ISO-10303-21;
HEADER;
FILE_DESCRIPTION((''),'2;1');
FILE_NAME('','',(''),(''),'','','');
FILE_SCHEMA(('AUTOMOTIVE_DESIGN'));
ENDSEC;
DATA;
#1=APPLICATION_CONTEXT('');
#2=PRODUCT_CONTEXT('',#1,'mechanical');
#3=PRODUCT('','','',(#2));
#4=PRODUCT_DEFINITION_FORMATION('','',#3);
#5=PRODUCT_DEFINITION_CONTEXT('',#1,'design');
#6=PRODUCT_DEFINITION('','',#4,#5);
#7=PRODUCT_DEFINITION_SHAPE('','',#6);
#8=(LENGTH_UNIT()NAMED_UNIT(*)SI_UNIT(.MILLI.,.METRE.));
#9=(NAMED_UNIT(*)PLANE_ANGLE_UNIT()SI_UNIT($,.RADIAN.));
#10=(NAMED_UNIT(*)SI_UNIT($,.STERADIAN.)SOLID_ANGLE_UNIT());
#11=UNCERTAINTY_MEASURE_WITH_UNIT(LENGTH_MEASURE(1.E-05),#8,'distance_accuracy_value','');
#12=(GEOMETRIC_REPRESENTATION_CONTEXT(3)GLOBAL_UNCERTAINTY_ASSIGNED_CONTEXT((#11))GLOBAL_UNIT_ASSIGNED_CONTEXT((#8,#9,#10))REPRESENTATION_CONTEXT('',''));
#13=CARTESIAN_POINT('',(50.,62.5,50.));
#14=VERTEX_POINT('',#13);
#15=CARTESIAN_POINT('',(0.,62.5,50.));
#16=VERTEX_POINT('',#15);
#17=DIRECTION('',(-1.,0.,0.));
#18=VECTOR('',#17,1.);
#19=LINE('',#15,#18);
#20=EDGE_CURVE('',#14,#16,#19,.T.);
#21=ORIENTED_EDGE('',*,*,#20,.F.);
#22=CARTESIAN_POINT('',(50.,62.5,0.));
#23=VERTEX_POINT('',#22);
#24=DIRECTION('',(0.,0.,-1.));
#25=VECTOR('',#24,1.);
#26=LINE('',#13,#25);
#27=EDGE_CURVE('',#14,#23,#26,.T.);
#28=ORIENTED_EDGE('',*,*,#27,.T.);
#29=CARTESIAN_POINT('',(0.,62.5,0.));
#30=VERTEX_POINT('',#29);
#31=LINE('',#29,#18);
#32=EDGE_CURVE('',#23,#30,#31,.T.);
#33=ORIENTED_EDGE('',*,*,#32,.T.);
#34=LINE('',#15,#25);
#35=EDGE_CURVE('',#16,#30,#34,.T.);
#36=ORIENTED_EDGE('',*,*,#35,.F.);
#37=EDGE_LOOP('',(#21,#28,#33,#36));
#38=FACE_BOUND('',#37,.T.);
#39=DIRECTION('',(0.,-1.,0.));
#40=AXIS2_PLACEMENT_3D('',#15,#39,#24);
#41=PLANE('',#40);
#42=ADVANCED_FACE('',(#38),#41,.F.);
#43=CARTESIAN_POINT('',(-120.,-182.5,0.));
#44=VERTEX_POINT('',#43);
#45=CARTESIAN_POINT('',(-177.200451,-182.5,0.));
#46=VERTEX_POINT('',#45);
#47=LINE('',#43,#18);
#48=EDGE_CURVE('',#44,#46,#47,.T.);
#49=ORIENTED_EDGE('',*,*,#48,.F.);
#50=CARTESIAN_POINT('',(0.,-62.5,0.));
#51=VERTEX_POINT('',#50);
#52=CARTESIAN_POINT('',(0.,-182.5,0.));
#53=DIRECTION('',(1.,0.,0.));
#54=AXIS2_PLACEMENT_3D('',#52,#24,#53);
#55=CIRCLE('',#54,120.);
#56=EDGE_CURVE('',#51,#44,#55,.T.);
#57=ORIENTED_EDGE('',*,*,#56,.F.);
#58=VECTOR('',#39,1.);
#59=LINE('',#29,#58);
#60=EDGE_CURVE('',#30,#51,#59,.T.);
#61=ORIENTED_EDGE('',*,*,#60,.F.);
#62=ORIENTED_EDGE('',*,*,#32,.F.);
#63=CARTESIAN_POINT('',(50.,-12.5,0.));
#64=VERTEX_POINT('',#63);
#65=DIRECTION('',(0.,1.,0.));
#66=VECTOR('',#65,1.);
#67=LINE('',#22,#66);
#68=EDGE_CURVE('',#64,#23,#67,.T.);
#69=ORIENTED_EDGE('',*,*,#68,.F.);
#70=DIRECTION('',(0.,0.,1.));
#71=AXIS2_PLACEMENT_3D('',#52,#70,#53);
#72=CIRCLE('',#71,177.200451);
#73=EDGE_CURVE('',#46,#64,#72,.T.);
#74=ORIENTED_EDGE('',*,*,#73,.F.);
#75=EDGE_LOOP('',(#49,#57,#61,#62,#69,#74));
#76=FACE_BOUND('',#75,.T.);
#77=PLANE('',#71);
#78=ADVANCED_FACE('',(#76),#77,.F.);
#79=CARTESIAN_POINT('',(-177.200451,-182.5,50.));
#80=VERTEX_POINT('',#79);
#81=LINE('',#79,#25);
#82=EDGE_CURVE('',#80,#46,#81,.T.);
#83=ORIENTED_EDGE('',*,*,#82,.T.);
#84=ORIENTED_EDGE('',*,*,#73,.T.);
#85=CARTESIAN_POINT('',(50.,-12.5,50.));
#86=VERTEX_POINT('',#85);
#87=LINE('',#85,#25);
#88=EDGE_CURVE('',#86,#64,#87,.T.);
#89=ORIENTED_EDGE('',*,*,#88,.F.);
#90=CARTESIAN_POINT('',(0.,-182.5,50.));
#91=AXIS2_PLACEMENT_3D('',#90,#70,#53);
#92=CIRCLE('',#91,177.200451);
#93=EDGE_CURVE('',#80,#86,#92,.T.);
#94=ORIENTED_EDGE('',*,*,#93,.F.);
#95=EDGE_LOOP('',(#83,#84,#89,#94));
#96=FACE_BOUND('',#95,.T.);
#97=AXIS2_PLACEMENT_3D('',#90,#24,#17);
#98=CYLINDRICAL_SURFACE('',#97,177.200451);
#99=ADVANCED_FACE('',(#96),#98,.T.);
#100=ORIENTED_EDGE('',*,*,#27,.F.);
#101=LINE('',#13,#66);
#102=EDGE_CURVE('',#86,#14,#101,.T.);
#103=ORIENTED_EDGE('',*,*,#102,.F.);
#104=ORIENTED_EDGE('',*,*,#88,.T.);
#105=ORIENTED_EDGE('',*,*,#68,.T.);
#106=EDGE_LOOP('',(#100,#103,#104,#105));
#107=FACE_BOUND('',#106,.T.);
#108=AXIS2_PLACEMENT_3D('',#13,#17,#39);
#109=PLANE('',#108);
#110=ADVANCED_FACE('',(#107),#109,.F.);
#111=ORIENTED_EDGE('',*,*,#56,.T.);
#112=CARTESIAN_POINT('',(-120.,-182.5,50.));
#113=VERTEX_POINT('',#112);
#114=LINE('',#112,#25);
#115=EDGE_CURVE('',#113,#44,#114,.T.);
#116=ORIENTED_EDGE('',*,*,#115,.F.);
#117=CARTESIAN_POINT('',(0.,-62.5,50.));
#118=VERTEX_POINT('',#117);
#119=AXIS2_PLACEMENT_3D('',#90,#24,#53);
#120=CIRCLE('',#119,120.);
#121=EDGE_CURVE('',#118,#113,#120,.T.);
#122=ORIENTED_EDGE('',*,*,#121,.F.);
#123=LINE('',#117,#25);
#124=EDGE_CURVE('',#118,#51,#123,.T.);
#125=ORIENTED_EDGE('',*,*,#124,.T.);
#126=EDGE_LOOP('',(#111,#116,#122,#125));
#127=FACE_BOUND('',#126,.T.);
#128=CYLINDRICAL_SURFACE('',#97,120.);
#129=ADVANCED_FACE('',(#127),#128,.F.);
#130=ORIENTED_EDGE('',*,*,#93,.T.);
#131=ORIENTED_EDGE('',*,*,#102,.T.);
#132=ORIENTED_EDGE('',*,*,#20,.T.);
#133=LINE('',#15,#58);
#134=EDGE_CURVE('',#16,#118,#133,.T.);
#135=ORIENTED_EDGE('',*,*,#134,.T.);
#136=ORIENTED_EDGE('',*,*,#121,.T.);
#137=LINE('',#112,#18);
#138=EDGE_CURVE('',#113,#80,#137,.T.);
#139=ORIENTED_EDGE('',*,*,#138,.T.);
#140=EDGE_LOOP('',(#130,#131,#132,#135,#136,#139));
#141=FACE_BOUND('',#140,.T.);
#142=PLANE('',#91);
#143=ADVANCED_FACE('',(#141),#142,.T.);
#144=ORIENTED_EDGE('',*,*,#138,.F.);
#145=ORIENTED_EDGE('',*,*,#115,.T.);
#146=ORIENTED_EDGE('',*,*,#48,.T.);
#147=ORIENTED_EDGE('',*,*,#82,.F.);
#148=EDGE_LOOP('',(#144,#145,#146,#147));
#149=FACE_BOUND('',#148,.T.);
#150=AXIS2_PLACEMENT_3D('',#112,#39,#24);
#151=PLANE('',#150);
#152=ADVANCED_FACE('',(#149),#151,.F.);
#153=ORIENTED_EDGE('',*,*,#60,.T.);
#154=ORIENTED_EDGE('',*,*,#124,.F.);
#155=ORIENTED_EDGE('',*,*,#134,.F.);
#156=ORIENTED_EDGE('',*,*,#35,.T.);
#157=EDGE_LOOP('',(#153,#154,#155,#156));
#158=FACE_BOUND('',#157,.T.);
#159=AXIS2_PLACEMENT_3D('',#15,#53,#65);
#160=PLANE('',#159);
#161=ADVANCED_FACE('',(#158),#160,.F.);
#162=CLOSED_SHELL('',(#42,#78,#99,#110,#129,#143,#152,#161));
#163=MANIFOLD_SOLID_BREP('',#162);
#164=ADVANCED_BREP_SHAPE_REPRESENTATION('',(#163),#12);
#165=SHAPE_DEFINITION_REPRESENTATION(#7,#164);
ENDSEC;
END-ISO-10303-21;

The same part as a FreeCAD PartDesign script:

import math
import FreeCAD as App
import Part
import Sketcher

V = App.Vector

doc = App.newDocument("Part")
body = doc.addObject("PartDesign::Body", "Body")

sketch1 = doc.addObject("Sketcher::SketchObject", "Sketch")
body.addObject(sketch1)
sketch1.AttachmentSupport = (doc.XY_Plane, [""])
sketch1.MapMode = "FlatFace"
sketch1.addGeometry([
    Part.LineSegment(V(0, 62, 0), V(0, -62, 0)),
    Part.ArcOfCircle(Part.Circle(V(0, -182, 0), V(0, 0, 1), 120), math.radians(180), math.radians(450)),
    Part.LineSegment(V(-120, -182, 0), V(-177, -182, 0)),
    Part.ArcOfCircle(Part.Circle(V(0, -182, 0), V(0, 0, 1), 177), math.radians(180), math.radians(434)),
    Part.LineSegment(V(50, -12, 0), V(50, 62, 0)),
    Part.LineSegment(V(50, 62, 0), V(0, 62, 0)),
], False)
sketch1.addConstraint([
    Sketcher.Constraint("Coincident", 0, 2, 1, 2),
    Sketcher.Constraint("Coincident", 1, 1, 2, 1),
    Sketcher.Constraint("Coincident", 2, 2, 3, 1),
    Sketcher.Constraint("Coincident", 3, 2, 4, 1),
    Sketcher.Constraint("Coincident", 4, 2, 5, 1),
    Sketcher.Constraint("Coincident", 5, 2, 0, 1),
    Sketcher.Constraint("Vertical", 0),
    Sketcher.Constraint("Horizontal", 2),
    Sketcher.Constraint("Vertical", 4),
    Sketcher.Constraint("Horizontal", 5),
    Sketcher.Constraint("Coincident", 3, 3, 1, 3),
    Sketcher.Constraint("Symmetric", 0, 2, 5, 2, -1, 1),
    Sketcher.Constraint("PointOnObject", 1, 3, -2),
    Sketcher.Constraint("Horizontal", 3, 3, 1, 1),
    Sketcher.Constraint("Radius", 1, 120.0),
    Sketcher.Constraint("DistanceX", 5, 2, 5, 1, 50.0),
    Sketcher.Constraint("DistanceY", 0, 2, 0, 1, 125.0),
    Sketcher.Constraint("DistanceY", 4, 1, 4, 2, 75.0),
])
pad1 = doc.addObject("PartDesign::Pad", "Pad")
body.addObject(pad1)
pad1.Profile = sketch1
pad1.Length = 50

doc.recompute()
